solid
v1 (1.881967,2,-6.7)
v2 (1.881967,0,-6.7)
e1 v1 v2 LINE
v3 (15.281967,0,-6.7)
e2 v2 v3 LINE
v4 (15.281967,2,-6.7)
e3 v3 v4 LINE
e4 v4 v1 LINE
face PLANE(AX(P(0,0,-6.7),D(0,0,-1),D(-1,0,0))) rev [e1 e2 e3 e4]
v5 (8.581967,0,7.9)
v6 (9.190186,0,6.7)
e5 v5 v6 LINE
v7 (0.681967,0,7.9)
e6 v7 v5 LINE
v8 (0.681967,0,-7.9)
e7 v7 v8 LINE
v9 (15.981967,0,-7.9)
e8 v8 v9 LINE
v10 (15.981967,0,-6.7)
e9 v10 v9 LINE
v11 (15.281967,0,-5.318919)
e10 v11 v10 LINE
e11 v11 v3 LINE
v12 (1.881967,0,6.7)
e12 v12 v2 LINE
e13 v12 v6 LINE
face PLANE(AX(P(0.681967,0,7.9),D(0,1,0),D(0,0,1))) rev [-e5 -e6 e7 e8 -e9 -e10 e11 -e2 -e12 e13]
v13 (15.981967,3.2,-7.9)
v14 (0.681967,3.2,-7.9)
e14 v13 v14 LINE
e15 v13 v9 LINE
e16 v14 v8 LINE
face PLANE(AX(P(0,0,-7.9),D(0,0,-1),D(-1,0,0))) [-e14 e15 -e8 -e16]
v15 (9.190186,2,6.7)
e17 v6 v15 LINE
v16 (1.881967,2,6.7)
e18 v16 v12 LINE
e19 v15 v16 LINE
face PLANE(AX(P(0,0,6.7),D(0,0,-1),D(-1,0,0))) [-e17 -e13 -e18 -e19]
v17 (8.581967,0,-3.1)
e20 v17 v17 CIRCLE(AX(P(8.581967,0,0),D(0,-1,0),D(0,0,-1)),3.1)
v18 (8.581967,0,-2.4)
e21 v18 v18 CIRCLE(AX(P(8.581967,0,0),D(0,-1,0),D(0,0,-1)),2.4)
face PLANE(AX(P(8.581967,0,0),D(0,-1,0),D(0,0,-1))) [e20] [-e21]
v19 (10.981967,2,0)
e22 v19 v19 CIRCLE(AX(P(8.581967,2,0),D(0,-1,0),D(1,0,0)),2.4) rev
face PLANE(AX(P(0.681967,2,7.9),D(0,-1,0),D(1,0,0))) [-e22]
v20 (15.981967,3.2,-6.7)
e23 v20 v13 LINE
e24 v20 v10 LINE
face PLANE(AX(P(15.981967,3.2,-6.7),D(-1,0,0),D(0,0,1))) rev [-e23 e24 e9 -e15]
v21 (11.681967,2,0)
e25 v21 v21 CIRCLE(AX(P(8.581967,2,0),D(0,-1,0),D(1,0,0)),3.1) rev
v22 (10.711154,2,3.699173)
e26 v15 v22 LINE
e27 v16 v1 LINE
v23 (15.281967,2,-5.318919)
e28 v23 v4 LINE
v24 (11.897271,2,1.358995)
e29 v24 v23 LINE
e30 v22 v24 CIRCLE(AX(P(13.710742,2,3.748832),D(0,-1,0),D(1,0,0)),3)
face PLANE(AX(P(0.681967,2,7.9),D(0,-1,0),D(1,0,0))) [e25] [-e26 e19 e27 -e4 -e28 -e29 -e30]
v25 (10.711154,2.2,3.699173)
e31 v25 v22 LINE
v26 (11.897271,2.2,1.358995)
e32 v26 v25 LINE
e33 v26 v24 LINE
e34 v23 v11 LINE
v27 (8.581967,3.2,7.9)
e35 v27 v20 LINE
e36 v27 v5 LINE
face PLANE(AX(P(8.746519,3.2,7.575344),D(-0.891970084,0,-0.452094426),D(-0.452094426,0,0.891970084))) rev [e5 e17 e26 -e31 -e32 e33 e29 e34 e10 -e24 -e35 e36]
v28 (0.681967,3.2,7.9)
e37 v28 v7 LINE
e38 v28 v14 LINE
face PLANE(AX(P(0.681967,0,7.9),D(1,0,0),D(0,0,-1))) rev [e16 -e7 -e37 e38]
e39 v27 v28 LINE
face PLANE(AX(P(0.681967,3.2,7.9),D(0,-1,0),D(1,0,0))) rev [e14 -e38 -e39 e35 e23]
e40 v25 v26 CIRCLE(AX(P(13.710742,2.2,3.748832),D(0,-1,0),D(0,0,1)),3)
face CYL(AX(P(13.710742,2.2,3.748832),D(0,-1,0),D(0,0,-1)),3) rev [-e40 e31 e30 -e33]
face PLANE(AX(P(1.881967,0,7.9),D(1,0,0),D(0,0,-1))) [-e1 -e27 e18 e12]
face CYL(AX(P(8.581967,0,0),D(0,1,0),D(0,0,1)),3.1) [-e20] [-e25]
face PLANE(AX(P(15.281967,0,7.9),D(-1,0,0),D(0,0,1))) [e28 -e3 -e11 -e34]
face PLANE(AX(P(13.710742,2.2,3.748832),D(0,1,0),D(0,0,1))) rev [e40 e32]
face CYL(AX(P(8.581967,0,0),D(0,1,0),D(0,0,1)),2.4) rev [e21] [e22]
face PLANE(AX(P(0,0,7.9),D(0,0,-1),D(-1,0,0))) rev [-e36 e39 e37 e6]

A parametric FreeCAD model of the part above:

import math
import FreeCAD as App
import Part
import Sketcher

V = App.Vector


def faces_at(feature, points):
    """Names of the faces that lie closest to the given points."""
    faces = feature.Shape.Faces
    near = lambda p: min(range(len(faces)), key=lambda i: faces[i].distToShape(Part.Vertex(*p))[0])
    return sorted({f"Face{near(p) + 1}" for p in points})

doc = App.newDocument("Part")
body = doc.addObject("PartDesign::Body", "Body")

# Sketch on XY plane
sketch1 = doc.addObject("Sketcher::SketchObject", "Sketch")
body.addObject(sketch1)
sketch1.AttachmentSupport = (doc.XY_Plane, [""])
sketch1.MapMode = "FlatFace"
sketch1.addGeometry([
    Part.LineSegment(V(0.681967, 3.2, 0), V(0.681967, 0, 0)),
    Part.LineSegment(V(0.681967, 0, 0), V(16.481967, 0, 0)),
    Part.LineSegment(V(16.481967, 0, 0), V(16.481967, 3.2, 0)),
    Part.LineSegment(V(16.481967, 3.2, 0), V(0.681967, 3.2, 0)),
], False)
sketch1.addConstraint([
    Sketcher.Constraint("Coincident", 0, 2, 1, 1),
    Sketcher.Constraint("Coincident", 1, 2, 2, 1),
    Sketcher.Constraint("Coincident", 2, 2, 3, 1),
    Sketcher.Constraint("Coincident", 3, 2, 0, 1),
    Sketcher.Constraint("Vertical", 0),
    Sketcher.Constraint("Horizontal", 1),
    Sketcher.Constraint("Vertical", 2),
    Sketcher.Constraint("Horizontal", 3),
    Sketcher.Constraint("PointOnObject", 0, 2, -1),
    Sketcher.Constraint("DistanceX", 1, 1, 1, 2, 15.8),
    Sketcher.Constraint("DistanceY", 0, 2, 0, 1, 3.2),
    Sketcher.Constraint("DistanceX", -1, 1, 0, 2, 0.681967),
])
pad1 = doc.addObject("PartDesign::Pad", "Pad")
body.addObject(pad1)
pad1.Profile = sketch1
pad1.Length = 15.8
pad1.Midplane = True
doc.recompute()

thickness = doc.addObject("PartDesign::Thickness", "Thickness")
body.addObject(thickness)
thickness.Base = (pad1, faces_at(pad1, [(8.582, 0, 0)]))
thickness.Value = 1.2
thickness.Reversed = True
thickness.Join = "Intersection"

# Sketch on XZ plane
sketch2 = doc.addObject("Sketcher::SketchObject", "Sketch001")
body.addObject(sketch2)
sketch2.AttachmentSupport = (doc.XZ_Plane, [""])
sketch2.MapMode = "FlatFace"
sketch2.AttachmentOffset = App.Placement(V(0, 0, -2.2), App.Rotation())
sketch2.addGeometry([
    Part.Circle(V(8.581967, 0, 0), V(0, 0, 1), 3.1),
    Part.Circle(V(8.581967, 0, 0), V(0, 0, 1), 2.4),
], False)
sketch2.addConstraint([
    Sketcher.Constraint("Coincident", 1, 3, 0, 3),
    Sketcher.Constraint("PointOnObject", 0, 3, -1),
    Sketcher.Constraint("Diameter", 0, 6.2),
    Sketcher.Constraint("Diameter", 1, 4.8),
    Sketcher.Constraint("DistanceX", -1, 1, 0, 3, 8.581967),
])
pad2 = doc.addObject("PartDesign::Pad", "Pad001")
body.addObject(pad2)
pad2.Profile = sketch2
pad2.Length = 2.2

# Sketch on XZ plane
sketch3 = doc.addObject("Sketcher::SketchObject", "Sketch002")
body.addObject(sketch3)
sketch3.AttachmentSupport = (doc.XZ_Plane, [""])
sketch3.MapMode = "FlatFace"
sketch3.addGeometry([
    Part.LineSegment(V(8.746519, 7.575344, 0), V(15.981967, -6.7, 0)),  # 0
    Part.LineSegment(V(15.981967, -6.7, 0), V(15.981967, -7.9, 0)),  # 1
    Part.LineSegment(V(15.981967, -7.9, 0), V(16.481967, -7.9, 0)),  # 2
    Part.LineSegment(V(16.481967, -7.9, 0), V(16.481967, 7.9, 0)),  # 3
    Part.LineSegment(V(16.481967, 7.9, 0), V(8.581967, 7.9, 0)),  # 4
    Part.LineSegment(V(8.581967, 7.9, 0), V(8.746519, 7.575344, 0)),  # 5
], False)
sketch3.addConstraint([
    Sketcher.Constraint("Coincident", 0, 2, 1, 1),
    Sketcher.Constraint("Coincident", 1, 2, 2, 1),
    Sketcher.Constraint("Coincident", 2, 2, 3, 1),
    Sketcher.Constraint("Coincident", 3, 2, 4, 1),
    Sketcher.Constraint("Coincident", 4, 2, 5, 1),
    Sketcher.Constraint("Coincident", 5, 2, 0, 1),
    Sketcher.Constraint("Vertical", 1),
    Sketcher.Constraint("Horizontal", 2),
    Sketcher.Constraint("Vertical", 3),
    Sketcher.Constraint("Horizontal", 4),
    Sketcher.Constraint("Parallel", 0, 5),
    Sketcher.Constraint("DistanceX", 2, 1, 2, 2, 0.5),
    Sketcher.Constraint("DistanceX", 4, 2, 4, 1, 7.9),
    Sketcher.Constraint("DistanceY", 1, 2, 1, 1, 1.2),
    Sketcher.Constraint("DistanceY", 3, 1, 3, 2, 15.8),
    Sketcher.Constraint("DistanceY", 0, 2, -1, 1, 6.7),
    Sketcher.Constraint("DistanceX", -1, 1, 5, 2, 8.746519),
    Sketcher.Constraint("DistanceX", 4, 2, 5, 2, 0.164552),
])
pocket1 = doc.addObject("PartDesign::Pocket", "Pocket")
body.addObject(pocket1)
pocket1.Profile = sketch3
pocket1.Type = "ThroughAll"

# Sketch on XZ plane
sketch4 = doc.addObject("Sketcher::SketchObject", "Sketch003")
body.addObject(sketch4)
sketch4.AttachmentSupport = (doc.XZ_Plane, [""])
sketch4.MapMode = "FlatFace"
sketch4.addGeometry([
    Part.LineSegment(V(11.897271, 1.358995, 0), V(10.711154, 3.699173, 0)),
    Part.ArcOfCircle(Part.Circle(V(13.710742, 3.748832, 0), V(0, 0, 1), 3), math.radians(-179.051537), math.radians(-127.192184)),
], False)
sketch4.addConstraint([
    Sketcher.Constraint("Coincident", 0, 1, 1, 2),
    Sketcher.Constraint("Coincident", 1, 1, 0, 2),
    Sketcher.Constraint("Radius", 1, 3.0),
    Sketcher.Constraint("DistanceX", -1, 1, 0, 1, 11.897271),
    Sketcher.Constraint("DistanceX", 0, 1, 1, 3, 1.813471),
    Sketcher.Constraint("DistanceY", 0, 1, 1, 1, 2.340178),
    Sketcher.Constraint("DistanceY", -1, 1, 1, 3, 3.748832),
])
pocket2 = doc.addObject("PartDesign::Pocket", "Pocket001")
body.addObject(pocket2)
pocket2.Profile = sketch4
pocket2.Length = 2.2

doc.recompute()
